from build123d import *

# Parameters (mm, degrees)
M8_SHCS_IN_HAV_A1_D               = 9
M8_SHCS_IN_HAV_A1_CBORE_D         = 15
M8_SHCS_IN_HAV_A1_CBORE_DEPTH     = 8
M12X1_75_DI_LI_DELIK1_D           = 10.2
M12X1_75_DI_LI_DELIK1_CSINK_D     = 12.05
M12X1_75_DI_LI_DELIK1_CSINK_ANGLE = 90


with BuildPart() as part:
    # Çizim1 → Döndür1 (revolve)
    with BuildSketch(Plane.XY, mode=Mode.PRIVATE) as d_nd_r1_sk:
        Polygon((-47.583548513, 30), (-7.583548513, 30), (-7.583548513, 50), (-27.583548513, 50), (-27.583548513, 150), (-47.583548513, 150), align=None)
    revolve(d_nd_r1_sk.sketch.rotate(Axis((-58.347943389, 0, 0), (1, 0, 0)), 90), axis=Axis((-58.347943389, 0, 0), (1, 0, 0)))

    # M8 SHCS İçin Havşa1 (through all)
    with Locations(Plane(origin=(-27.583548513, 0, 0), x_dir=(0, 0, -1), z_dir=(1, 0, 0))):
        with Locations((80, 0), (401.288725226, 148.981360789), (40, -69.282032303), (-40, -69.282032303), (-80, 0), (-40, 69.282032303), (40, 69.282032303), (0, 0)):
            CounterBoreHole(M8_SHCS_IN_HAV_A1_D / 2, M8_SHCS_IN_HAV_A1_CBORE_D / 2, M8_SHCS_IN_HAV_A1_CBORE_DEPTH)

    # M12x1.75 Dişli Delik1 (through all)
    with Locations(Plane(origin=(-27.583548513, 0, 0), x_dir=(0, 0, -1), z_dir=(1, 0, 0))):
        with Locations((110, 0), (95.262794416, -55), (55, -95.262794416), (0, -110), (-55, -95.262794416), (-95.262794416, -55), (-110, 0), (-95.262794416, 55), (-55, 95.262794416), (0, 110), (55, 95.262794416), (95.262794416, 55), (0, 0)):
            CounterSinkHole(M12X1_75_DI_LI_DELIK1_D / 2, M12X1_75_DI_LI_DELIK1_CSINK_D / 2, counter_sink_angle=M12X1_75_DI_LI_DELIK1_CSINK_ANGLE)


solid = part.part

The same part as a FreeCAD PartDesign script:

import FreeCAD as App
import Part
import Sketcher

doc = App.newDocument("Part")
params = doc.addObject("Spreadsheet::Sheet", "Params")
for row, (alias, value) in enumerate([
    ("sketch1_width", "40 mm"),
    ("sketch1_height", "100 mm"),
    ("revolution_angle", "360 deg"),
    ("sketch2_diameter", "9 mm"),
    ("hole_diameter", "9 mm"),
    ("hole_cbore_diameter", "15 mm"),
    ("hole_cbore_depth", "8 mm"),
    ("sketch3_diameter", "10.2 mm"),
    ("hole2_diameter", "10.2 mm"),
    ("hole2_csink_diameter", "12.05 mm"),
], start=1):
    params.set(f"A{row}", alias)
    params.set(f"B{row}", "=" + value)
    params.setAlias(f"B{row}", alias)

body = doc.addObject("PartDesign::Body", "Body")

sketch1 = body.newObject("Sketcher::SketchObject", "Sketch")
sketch1.AttachmentSupport = (doc.getObject("XY_Plane"), [""])
sketch1.MapMode = "FlatFace"
sketch1.addGeometry([
    Part.LineSegment(App.Vector(-48, 30, 0), App.Vector(-8, 30, 0)),
    Part.LineSegment(App.Vector(-8, 30, 0), App.Vector(-8, 50, 0)),
    Part.LineSegment(App.Vector(-8, 50, 0), App.Vector(-28, 50, 0)),
    Part.LineSegment(App.Vector(-28, 50, 0), App.Vector(-28, 150, 0)),
    Part.LineSegment(App.Vector(-28, 150, 0), App.Vector(-48, 150, 0)),
    Part.LineSegment(App.Vector(-48, 150, 0), App.Vector(-48, 30, 0)),
], False)
sketch1.addConstraint([
    Sketcher.Constraint("Coincident", 0, 2, 1, 1),
    Sketcher.Constraint("Coincident", 1, 2, 2, 1),
    Sketcher.Constraint("Coincident", 2, 2, 3, 1),
    Sketcher.Constraint("Coincident", 3, 2, 4, 1),
    Sketcher.Constraint("Coincident", 4, 2, 5, 1),
    Sketcher.Constraint("Coincident", 5, 2, 0, 1),
    Sketcher.Constraint("Horizontal", 0),
    Sketcher.Constraint("Vertical", 1),
    Sketcher.Constraint("Horizontal", 2),
    Sketcher.Constraint("Vertical", 3),
    Sketcher.Constraint("Horizontal", 4),
    Sketcher.Constraint("Vertical", 5),
    Sketcher.Constraint("Equal", 2, 4),
    Sketcher.Constraint("Equal", 4, 1),
    Sketcher.Constraint("DistanceX", 0, 1, 0, 2, 40.0),
    Sketcher.Constraint("DistanceY", 3, 1, 3, 2, 100.0),
    Sketcher.Constraint("DistanceY", -1, 1, 0, 2, 30.0),
    Sketcher.Constraint("DistanceX", 0, 2, -1, 1, 7.583549),
])
sketch1.setExpression("Constraints[14]", "Params.sketch1_width")
sketch1.setExpression("Constraints[15]", "Params.sketch1_height")
revolution = body.newObject("PartDesign::Revolution", "Revolution")
revolution.Profile = sketch1
revolution.ReferenceAxis = (sketch1, ["H_Axis"])
revolution.setExpression("Angle", "Params.revolution_angle")

sketch2 = body.newObject("Sketcher::SketchObject", "Sketch001")
sketch2.AttachmentSupport = (doc.getObject("YZ_Plane"), [""])
sketch2.MapMode = "FlatFace"
sketch2.AttachmentOffset = App.Placement(App.Vector(0, 0, -27.583549), App.Rotation())
sketch2.addGeometry([
    Part.Circle(App.Vector(0, -80, 0), App.Vector(0, 0, 1), 4.5),
    Part.Circle(App.Vector(149, -401.3, 0), App.Vector(0, 0, 1), 4.5),
    Part.Circle(App.Vector(-69.3, -40, 0), App.Vector(0, 0, 1), 4.5),
    Part.Circle(App.Vector(-69.3, 40, 0), App.Vector(0, 0, 1), 4.5),
    Part.Circle(App.Vector(0, 80, 0), App.Vector(0, 0, 1), 4.5),
    Part.Circle(App.Vector(69.3, 40, 0), App.Vector(0, 0, 1), 4.5),
    Part.Circle(App.Vector(69.3, -40, 0), App.Vector(0, 0, 1), 4.5),
    Part.Circle(App.Vector(0, 0, 0), App.Vector(0, 0, 1), 4.5),
], False)
sketch2.addConstraint([
    Sketcher.Constraint("Coincident", 7, 3, -1, 1),
    Sketcher.Constraint("Equal", 0, 1),
    Sketcher.Constraint("Equal", 1, 2),
    Sketcher.Constraint("Equal", 2, 3),
    Sketcher.Constraint("Equal", 3, 4),
    Sketcher.Constraint("Equal", 4, 5),
    Sketcher.Constraint("Equal", 5, 6),
    Sketcher.Constraint("Equal", 6, 7),
    Sketcher.Constraint("Symmetric", 0, 3, 4, 3, -1, 1),
    Sketcher.Constraint("Symmetric", 2, 3, 5, 3, -1, 1),
    Sketcher.Constraint("Symmetric", 3, 3, 6, 3, -1, 1),
    Sketcher.Constraint("Symmetric", 3, 3, 5, 3, -2),
    Sketcher.Constraint("PointOnObject", 0, 3, -2),
    Sketcher.Constraint("Diameter", 0, 9.0),
    Sketcher.Constraint("DistanceY", 0, 3, -1, 1, 80.0),
    Sketcher.Constraint("DistanceY", 2, 3, -1, 1, 40.0),
    Sketcher.Constraint("DistanceX", -1, 1, 1, 3, 148.981361),
    Sketcher.Constraint("DistanceX", 5, 3, 1, 3, 79.699328),
    Sketcher.Constraint("DistanceY", 1, 3, -1, 1, 401.288725),
])
sketch2.setExpression("Constraints[13]", "Params.sketch2_diameter")
doc.recompute()
hole = body.newObject("PartDesign::Hole", "Hole")
hole.Profile = sketch2
hole.ThreadType = "None"
hole.setExpression("Diameter", "Params.hole_diameter")
hole.DepthType = "ThroughAll"
hole.HoleCutType = "Counterbore"
hole.setExpression("HoleCutDiameter", "Params.hole_cbore_diameter")
hole.setExpression("HoleCutDepth", "Params.hole_cbore_depth")

sketch3 = body.newObject("Sketcher::SketchObject", "Sketch002")
sketch3.AttachmentSupport = (doc.getObject("YZ_Plane"), [""])
sketch3.MapMode = "FlatFace"
sketch3.AttachmentOffset = App.Placement(App.Vector(0, 0, -27.583549), App.Rotation())
sketch3.addGeometry([
    Part.Circle(App.Vector(0, -110, 0), App.Vector(0, 0, 1), 5),
    Part.Circle(App.Vector(-55, -95, 0), App.Vector(0, 0, 1), 5),
    Part.Circle(App.Vector(-95, -55, 0), App.Vector(0, 0, 1), 5),
    Part.Circle(App.Vector(-110, 0, 0), App.Vector(0, 0, 1), 5),
    Part.Circle(App.Vector(-95, 55, 0), App.Vector(0, 0, 1), 5),
    Part.Circle(App.Vector(-55, 95, 0), App.Vector(0, 0, 1), 5),
    Part.Circle(App.Vector(0, 110, 0), App.Vector(0, 0, 1), 5),
    Part.Circle(App.Vector(55, 95, 0), App.Vector(0, 0, 1), 5),
    Part.Circle(App.Vector(95, 55, 0), App.Vector(0, 0, 1), 5),
    Part.Circle(App.Vector(110, 0, 0), App.Vector(0, 0, 1), 5),
    Part.Circle(App.Vector(95, -55, 0), App.Vector(0, 0, 1), 5),
    Part.Circle(App.Vector(55, -95, 0), App.Vector(0, 0, 1), 5),
    Part.Circle(App.Vector(0, 0, 0), App.Vector(0, 0, 1), 5),
], False)
sketch3.addConstraint([
    Sketcher.Constraint("Coincident", 12, 3, -1, 1),
    Sketcher.Constraint("Equal", 0, 1),
    Sketcher.Constraint("Equal", 1, 2),
    Sketcher.Constraint("Equal", 2, 3),
    Sketcher.Constraint("Equal", 3, 4),
    Sketcher.Constraint("Equal", 4, 5),
    Sketcher.Constraint("Equal", 5, 6),
    Sketcher.Constraint("Equal", 6, 7),
    Sketcher.Constraint("Equal", 7, 8),
    Sketcher.Constraint("Equal", 8, 9),
    Sketcher.Constraint("Equal", 9, 10),
    Sketcher.Constraint("Equal", 10, 11),
    Sketcher.Constraint("Equal", 11, 12),
    Sketcher.Constraint("Symmetric", 0, 3, 6, 3, -1, 1),
    Sketcher.Constraint("Symmetric", 1, 3, 7, 3, -1, 1),
    Sketcher.Constraint("Symmetric", 2, 3, 8, 3, -1, 1),
    Sketcher.Constraint("Symmetric", 3, 3, 9, 3, -1, 1),
    Sketcher.Constraint("Symmetric", 4, 3, 10, 3, -1, 1),
    Sketcher.Constraint("Symmetric", 5, 3, 11, 3, -1, 1),
    Sketcher.Constraint("Symmetric", 5, 3, 7, 3, -2),
    Sketcher.Constraint("Symmetric", 4, 3, 8, 3, -2),
    Sketcher.Constraint("PointOnObject", 0, 3, -2),
    Sketcher.Constraint("PointOnObject", 3, 3, -1),
    Sketcher.Constraint("Diameter", 0, 10.2),
    Sketcher.Constraint("DistanceY", 0, 3, -1, 1, 110.0),
    Sketcher.Constraint("DistanceX", 1, 3, -1, 1, 55.0),
    Sketcher.Constraint("DistanceY", 2, 3, -1, 1, 55.0),
    Sketcher.Constraint("DistanceX", 3, 3, -1, 1, 110.0),
    Sketcher.Constraint("DistanceY", 1, 3, 5, 3, 190.525589),
    Sketcher.Constraint("DistanceX", 4, 3, 8, 3, 190.525589),
])
sketch3.setExpression("Constraints[23]", "Params.sketch3_diameter")
doc.recompute()
hole2 = body.newObject("PartDesign::Hole", "Hole001")
hole2.Profile = sketch3
hole2.ThreadType = "None"
hole2.setExpression("Diameter", "Params.hole2_diameter")
hole2.DepthType = "ThroughAll"
hole2.HoleCutType = "Countersink"
hole2.setExpression("HoleCutDiameter", "Params.hole2_csink_diameter")
hole2.HoleCutCountersinkAngle = 90

doc.recompute()
